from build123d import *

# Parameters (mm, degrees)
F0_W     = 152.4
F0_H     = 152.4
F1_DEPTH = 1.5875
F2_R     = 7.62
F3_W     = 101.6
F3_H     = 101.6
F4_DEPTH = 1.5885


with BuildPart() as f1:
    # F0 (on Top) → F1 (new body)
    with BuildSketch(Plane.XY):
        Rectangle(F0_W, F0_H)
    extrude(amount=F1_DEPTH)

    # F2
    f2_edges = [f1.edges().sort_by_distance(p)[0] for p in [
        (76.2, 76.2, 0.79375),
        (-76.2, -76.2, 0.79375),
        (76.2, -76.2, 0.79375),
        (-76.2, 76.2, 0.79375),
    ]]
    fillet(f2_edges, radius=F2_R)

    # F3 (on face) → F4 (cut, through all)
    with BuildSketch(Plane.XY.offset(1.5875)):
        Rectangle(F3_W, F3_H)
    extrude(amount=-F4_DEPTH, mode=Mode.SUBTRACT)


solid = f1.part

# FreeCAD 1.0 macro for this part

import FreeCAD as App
import Part
import Sketcher
Q = App.Units.Quantity


def edges_at(feature, points):
    """Names of the edges that pass closest to the given points."""
    edges = feature.Shape.Edges
    near = lambda p: min(range(len(edges)), key=lambda i: edges[i].distToShape(Part.Vertex(*p))[0])
    return sorted({f"Edge{near(p) + 1}" for p in points})

doc = App.newDocument("Part")
params = doc.addObject("Spreadsheet::Sheet", "Params")
for row, (alias, value) in enumerate([
    ("sketch1_width", "6 in"),
    ("pad1_length", "0.0625 in"),
    ("fillet_radius", "0.3 in"),
    ("sketch2_width", "4 in"),
], start=1):
    params.set(f"A{row}", alias)
    params.set(f"B{row}", "=" + value)
    params.setAlias(f"B{row}", alias)

body = doc.addObject("PartDesign::Body", "Body")

sketch1 = body.newObject("Sketcher::SketchObject", "Sketch")
sketch1.AttachmentSupport = (doc.getObject("XY_Plane"), [""])
sketch1.MapMode = "FlatFace"
sketch1.addGeometry(Part.LineSegment(App.Vector(-76, 76, 0), App.Vector(-76, -76, 0)), False)
sketch1.addGeometry(Part.LineSegment(App.Vector(-76, -76, 0), App.Vector(76, -76, 0)), False)
sketch1.addGeometry(Part.LineSegment(App.Vector(76, -76, 0), App.Vector(76, 76, 0)), False)
sketch1.addGeometry(Part.LineSegment(App.Vector(76, 76, 0), App.Vector(-76, 76, 0)), False)
sketch1.addConstraint(Sketcher.Constraint("Coincident", 0, 2, 1, 1))
sketch1.addConstraint(Sketcher.Constraint("Coincident", 1, 2, 2, 1))
sketch1.addConstraint(Sketcher.Constraint("Coincident", 2, 2, 3, 1))
sketch1.addConstraint(Sketcher.Constraint("Coincident", 3, 2, 0, 1))
sketch1.addConstraint(Sketcher.Constraint("Vertical", 0))
sketch1.addConstraint(Sketcher.Constraint("Horizontal", 1))
sketch1.addConstraint(Sketcher.Constraint("Vertical", 2))
sketch1.addConstraint(Sketcher.Constraint("Horizontal", 3))
sketch1.addConstraint(Sketcher.Constraint("Symmetric", 0, 2, 2, 2, -1, 1))
sketch1.addConstraint(Sketcher.Constraint("Equal", 3, 0))
sketch1.addConstraint(Sketcher.Constraint("DistanceX", 1, 1, 1, 2, Q("6 in")))
sketch1.setExpression("Constraints[10]", "Params.sketch1_width")
pad1 = body.newObject("PartDesign::Pad", "Pad")
pad1.Profile = sketch1
pad1.setExpression("Length", "Params.pad1_length")
doc.recompute()

fillet = body.newObject("PartDesign::Fillet", "Fillet")
fillet.Base = (pad1, edges_at(pad1, [
    (76.2, 76.2, 0.794),
    (-76.2, -76.2, 0.794),
    (76.2, -76.2, 0.794),
    (-76.2, 76.2, 0.794),
]))
fillet.setExpression("Radius", "Params.fillet_radius")

sketch2 = body.newObject("Sketcher::SketchObject", "Sketch001")
sketch2.AttachmentSupport = (doc.getObject("XY_Plane"), [""])
sketch2.MapMode = "FlatFace"
sketch2.AttachmentOffset = App.Placement(App.Vector(0, 0, 0.0625 * 25.4), App.Rotation())
sketch2.addGeometry(Part.LineSegment(App.Vector(-51, 51, 0), App.Vector(-51, -51, 0)), False)
sketch2.addGeometry(Part.LineSegment(App.Vector(-51, -51, 0), App.Vector(51, -51, 0)), False)
sketch2.addGeometry(Part.LineSegment(App.Vector(51, -51, 0), App.Vector(51, 51, 0)), False)
sketch2.addGeometry(Part.LineSegment(App.Vector(51, 51, 0), App.Vector(-51, 51, 0)), False)
sketch2.addConstraint(Sketcher.Constraint("Coincident", 0, 2, 1, 1))
sketch2.addConstraint(Sketcher.Constraint("Coincident", 1, 2, 2, 1))
sketch2.addConstraint(Sketcher.Constraint("Coincident", 2, 2, 3, 1))
sketch2.addConstraint(Sketcher.Constraint("Coincident", 3, 2, 0, 1))
sketch2.addConstraint(Sketcher.Constraint("Vertical", 0))
sketch2.addConstraint(Sketcher.Constraint("Horizontal", 1))
sketch2.addConstraint(Sketcher.Constraint("Vertical", 2))
sketch2.addConstraint(Sketcher.Constraint("Horizontal", 3))
sketch2.addConstraint(Sketcher.Constraint("Symmetric", 0, 2, 2, 2, -1, 1))
sketch2.addConstraint(Sketcher.Constraint("Equal", 3, 0))
sketch2.addConstraint(Sketcher.Constraint("DistanceX", 1, 1, 1, 2, Q("4 in")))
sketch2.setExpression("Constraints[10]", "Params.sketch2_width")
pocket1 = body.newObject("PartDesign::Pocket", "Pocket")
pocket1.Profile = sketch2
pocket1.Type = "ThroughAll"

doc.recompute()
